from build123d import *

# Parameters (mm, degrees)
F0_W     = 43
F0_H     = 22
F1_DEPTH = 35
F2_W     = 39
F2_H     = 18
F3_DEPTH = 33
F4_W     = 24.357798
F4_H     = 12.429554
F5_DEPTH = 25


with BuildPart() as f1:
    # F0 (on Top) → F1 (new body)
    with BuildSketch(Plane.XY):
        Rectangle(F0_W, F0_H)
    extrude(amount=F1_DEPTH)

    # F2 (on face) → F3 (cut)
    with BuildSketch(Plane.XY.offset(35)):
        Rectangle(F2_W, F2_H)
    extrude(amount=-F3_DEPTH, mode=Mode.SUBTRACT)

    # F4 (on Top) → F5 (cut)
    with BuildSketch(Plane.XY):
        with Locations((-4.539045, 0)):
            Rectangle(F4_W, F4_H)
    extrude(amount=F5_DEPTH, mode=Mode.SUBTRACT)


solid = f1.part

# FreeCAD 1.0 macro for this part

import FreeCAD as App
import Part
import Sketcher

V = App.Vector
Q = App.Units.Quantity


def add_polygon(sketch, points):
    """Adds a closed chain of lines whose ends are joined by coincident constraints."""
    first, n = sketch.GeometryCount, len(points)
    for a, b in zip(points, points[1:] + points[:1]):
        sketch.addGeometry(Part.LineSegment(App.Vector(*a, 0), App.Vector(*b, 0)), False)
    for i in range(n):
        sketch.addConstraint(Sketcher.Constraint("Coincident", first + i, 2, first + (i + 1) % n, 1))

doc = App.newDocument("Part")
body = doc.addObject("PartDesign::Body", "Body")

sketch1 = doc.addObject("Sketcher::SketchObject", "Sketch")
body.addObject(sketch1)
sketch1.AttachmentSupport = (doc.XY_Plane, [""])
sketch1.MapMode = "FlatFace"
add_polygon(sketch1, [(-22, 11), (-22, -11), (22, -11), (22, 11)])
sketch1.addConstraint([
    Sketcher.Constraint("Vertical", 0),
    Sketcher.Constraint("Horizontal", 1),
    Sketcher.Constraint("Vertical", 2),
    Sketcher.Constraint("Horizontal", 3),
    Sketcher.Constraint("Symmetric", 0, 2, 2, 2, -1, 1),
    Sketcher.Constraint("DistanceX", 1, 1, 1, 2, Q("43 mm")),
    Sketcher.Constraint("DistanceY", 0, 2, 0, 1, Q("22 mm")),
])
pad1 = doc.addObject("PartDesign::Pad", "Pad")
body.addObject(pad1)
pad1.Profile = sketch1
pad1.Length = 35

sketch2 = doc.addObject("Sketcher::SketchObject", "Sketch001")
body.addObject(sketch2)
sketch2.AttachmentSupport = (doc.XY_Plane, [""])
sketch2.MapMode = "FlatFace"
sketch2.AttachmentOffset = App.Placement(V(0, 0, 35), App.Rotation())
add_polygon(sketch2, [(-20, 9), (-20, -9), (20, -9), (20, 9)])
sketch2.addConstraint([
    Sketcher.Constraint("Vertical", 0),
    Sketcher.Constraint("Horizontal", 1),
    Sketcher.Constraint("Vertical", 2),
    Sketcher.Constraint("Horizontal", 3),
    Sketcher.Constraint("Symmetric", 0, 2, 2, 2, -1, 1),
    Sketcher.Constraint("DistanceX", 1, 1, 1, 2, Q("39 mm")),
    Sketcher.Constraint("DistanceY", 0, 2, 0, 1, Q("18 mm")),
])
pocket1 = doc.addObject("PartDesign::Pocket", "Pocket")
body.addObject(pocket1)
pocket1.Profile = sketch2
pocket1.Length = 33

sketch3 = doc.addObject("Sketcher::SketchObject", "Sketch002")
body.addObject(sketch3)
sketch3.AttachmentSupport = (doc.XY_Plane, [""])
sketch3.MapMode = "FlatFace"
add_polygon(sketch3, [(-17, 6), (-17, -6), (8, -6), (8, 6)])
sketch3.addConstraint([
    Sketcher.Constraint("Vertical", 0),
    Sketcher.Constraint("Horizontal", 1),
    Sketcher.Constraint("Vertical", 2),
    Sketcher.Constraint("Horizontal", 3),
    Sketcher.Constraint("DistanceX", 1, 1, 1, 2, Q("24.357798 mm")),
    Sketcher.Constraint("DistanceY", 0, 2, 0, 1, Q("12.429554 mm")),
    Sketcher.Constraint("DistanceX", 0, 2, -1, 1, Q("16.717944 mm")),
    Sketcher.Constraint("DistanceY", 0, 2, -1, 1, Q("6.214777 mm")),
])
pocket2 = doc.addObject("PartDesign::Pocket", "Pocket001")
body.addObject(pocket2)
pocket2.Profile = sketch3
pocket2.Length = 25
pocket2.Reversed = True

doc.recompute()
